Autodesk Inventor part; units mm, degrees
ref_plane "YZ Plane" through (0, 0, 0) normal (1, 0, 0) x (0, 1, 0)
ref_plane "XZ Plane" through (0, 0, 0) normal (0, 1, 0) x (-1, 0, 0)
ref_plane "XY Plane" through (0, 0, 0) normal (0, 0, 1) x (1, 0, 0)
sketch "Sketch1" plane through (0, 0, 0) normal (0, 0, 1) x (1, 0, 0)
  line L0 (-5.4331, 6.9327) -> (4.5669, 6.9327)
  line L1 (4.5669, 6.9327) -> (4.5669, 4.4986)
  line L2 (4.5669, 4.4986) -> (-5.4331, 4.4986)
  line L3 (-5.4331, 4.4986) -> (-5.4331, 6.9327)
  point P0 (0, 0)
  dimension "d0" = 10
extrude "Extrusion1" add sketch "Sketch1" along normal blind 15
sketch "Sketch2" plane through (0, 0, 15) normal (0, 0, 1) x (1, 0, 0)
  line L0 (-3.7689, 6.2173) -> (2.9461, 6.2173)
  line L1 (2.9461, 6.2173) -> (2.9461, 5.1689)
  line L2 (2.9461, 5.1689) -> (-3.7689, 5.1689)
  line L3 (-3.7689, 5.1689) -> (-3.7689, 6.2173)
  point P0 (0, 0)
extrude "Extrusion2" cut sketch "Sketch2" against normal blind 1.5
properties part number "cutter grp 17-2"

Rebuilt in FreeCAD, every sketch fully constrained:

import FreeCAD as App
import Part
import Sketcher
from FreeCAD import Vector
Q = App.Units.Quantity

doc = App.newDocument("Part")
body = doc.addObject("PartDesign::Body", "Body")

# Sketch on XY plane
sketch1 = body.newObject("Sketcher::SketchObject", "Sketch")
sketch1.AttachmentSupport = (doc.getObject("XY_Plane"), [""])
sketch1.MapMode = "FlatFace"
sketch1.addGeometry(Part.LineSegment(Vector(4.6, 6.9, 0), Vector(-5.4, 6.9, 0)), False)
sketch1.addGeometry(Part.LineSegment(Vector(-5.4, 6.9, 0), Vector(-5.4, 4.5, 0)), False)
sketch1.addGeometry(Part.LineSegment(Vector(-5.4, 4.5, 0), Vector(4.6, 4.5, 0)), False)
sketch1.addGeometry(Part.LineSegment(Vector(4.6, 4.5, 0), Vector(4.6, 6.9, 0)), False)
sketch1.addConstraint(Sketcher.Constraint("Coincident", 0, 2, 1, 1))
sketch1.addConstraint(Sketcher.Constraint("Coincident", 1, 2, 2, 1))
sketch1.addConstraint(Sketcher.Constraint("Coincident", 2, 2, 3, 1))
sketch1.addConstraint(Sketcher.Constraint("Coincident", 3, 2, 0, 1))
sketch1.addConstraint(Sketcher.Constraint("Horizontal", 0))
sketch1.addConstraint(Sketcher.Constraint("Vertical", 1))
sketch1.addConstraint(Sketcher.Constraint("Horizontal", 2))
sketch1.addConstraint(Sketcher.Constraint("Vertical", 3))
sketch1.addConstraint(Sketcher.Constraint("DistanceX", 0, 2, 0, 1, Q("10 mm")))
sketch1.addConstraint(Sketcher.Constraint("DistanceY", 1, 2, 1, 1, Q("2.434 mm")))
sketch1.addConstraint(Sketcher.Constraint("DistanceX", 0, 2, -1, 1, Q("5.433 mm")))
sketch1.addConstraint(Sketcher.Constraint("DistanceY", -1, 1, 0, 2, Q("6.9327 mm")))
pad1 = body.newObject("PartDesign::Pad", "Pad")
pad1.Profile = sketch1
pad1.Length = 15

# Sketch on XY plane
sketch2 = body.newObject("Sketcher::SketchObject", "Sketch001")
sketch2.AttachmentSupport = (doc.getObject("XY_Plane"), [""])
sketch2.MapMode = "FlatFace"
sketch2.AttachmentOffset = App.Placement(Vector(0, 0, 15), App.Rotation())
sketch2.addGeometry(Part.LineSegment(Vector(2.9, 6.2, 0), Vector(-3.8, 6.2, 0)), False)
sketch2.addGeometry(Part.LineSegment(Vector(-3.8, 6.2, 0), Vector(-3.8, 5.2, 0)), False)
sketch2.addGeometry(Part.LineSegment(Vector(-3.8, 5.2, 0), Vector(2.9, 5.2, 0)), False)
sketch2.addGeometry(Part.LineSegment(Vector(2.9, 5.2, 0), Vector(2.9, 6.2, 0)), False)
sketch2.addConstraint(Sketcher.Constraint("Coincident", 0, 2, 1, 1))
sketch2.addConstraint(Sketcher.Constraint("Coincident", 1, 2, 2, 1))
sketch2.addConstraint(Sketcher.Constraint("Coincident", 2, 2, 3, 1))
sketch2.addConstraint(Sketcher.Constraint("Coincident", 3, 2, 0, 1))
sketch2.addConstraint(Sketcher.Constraint("Horizontal", 0))
sketch2.addConstraint(Sketcher.Constraint("Vertical", 1))
sketch2.addConstraint(Sketcher.Constraint("Horizontal", 2))
sketch2.addConstraint(Sketcher.Constraint("Vertical", 3))
sketch2.addConstraint(Sketcher.Constraint("DistanceX", 0, 2, 0, 1, Q("6.715 mm")))
sketch2.addConstraint(Sketcher.Constraint("DistanceY", 1, 2, 1, 1, Q("1.0484 mm")))
sketch2.addConstraint(Sketcher.Constraint("DistanceX", 0, 2, -1, 1, Q("3.769 mm")))
sketch2.addConstraint(Sketcher.Constraint("DistanceY", -1, 1, 1, 2, Q("5.169 mm")))
pocket1 = body.newObject("PartDesign::Pocket", "Pocket")
pocket1.Profile = sketch2
pocket1.Length = 1.5

doc.recompute()
